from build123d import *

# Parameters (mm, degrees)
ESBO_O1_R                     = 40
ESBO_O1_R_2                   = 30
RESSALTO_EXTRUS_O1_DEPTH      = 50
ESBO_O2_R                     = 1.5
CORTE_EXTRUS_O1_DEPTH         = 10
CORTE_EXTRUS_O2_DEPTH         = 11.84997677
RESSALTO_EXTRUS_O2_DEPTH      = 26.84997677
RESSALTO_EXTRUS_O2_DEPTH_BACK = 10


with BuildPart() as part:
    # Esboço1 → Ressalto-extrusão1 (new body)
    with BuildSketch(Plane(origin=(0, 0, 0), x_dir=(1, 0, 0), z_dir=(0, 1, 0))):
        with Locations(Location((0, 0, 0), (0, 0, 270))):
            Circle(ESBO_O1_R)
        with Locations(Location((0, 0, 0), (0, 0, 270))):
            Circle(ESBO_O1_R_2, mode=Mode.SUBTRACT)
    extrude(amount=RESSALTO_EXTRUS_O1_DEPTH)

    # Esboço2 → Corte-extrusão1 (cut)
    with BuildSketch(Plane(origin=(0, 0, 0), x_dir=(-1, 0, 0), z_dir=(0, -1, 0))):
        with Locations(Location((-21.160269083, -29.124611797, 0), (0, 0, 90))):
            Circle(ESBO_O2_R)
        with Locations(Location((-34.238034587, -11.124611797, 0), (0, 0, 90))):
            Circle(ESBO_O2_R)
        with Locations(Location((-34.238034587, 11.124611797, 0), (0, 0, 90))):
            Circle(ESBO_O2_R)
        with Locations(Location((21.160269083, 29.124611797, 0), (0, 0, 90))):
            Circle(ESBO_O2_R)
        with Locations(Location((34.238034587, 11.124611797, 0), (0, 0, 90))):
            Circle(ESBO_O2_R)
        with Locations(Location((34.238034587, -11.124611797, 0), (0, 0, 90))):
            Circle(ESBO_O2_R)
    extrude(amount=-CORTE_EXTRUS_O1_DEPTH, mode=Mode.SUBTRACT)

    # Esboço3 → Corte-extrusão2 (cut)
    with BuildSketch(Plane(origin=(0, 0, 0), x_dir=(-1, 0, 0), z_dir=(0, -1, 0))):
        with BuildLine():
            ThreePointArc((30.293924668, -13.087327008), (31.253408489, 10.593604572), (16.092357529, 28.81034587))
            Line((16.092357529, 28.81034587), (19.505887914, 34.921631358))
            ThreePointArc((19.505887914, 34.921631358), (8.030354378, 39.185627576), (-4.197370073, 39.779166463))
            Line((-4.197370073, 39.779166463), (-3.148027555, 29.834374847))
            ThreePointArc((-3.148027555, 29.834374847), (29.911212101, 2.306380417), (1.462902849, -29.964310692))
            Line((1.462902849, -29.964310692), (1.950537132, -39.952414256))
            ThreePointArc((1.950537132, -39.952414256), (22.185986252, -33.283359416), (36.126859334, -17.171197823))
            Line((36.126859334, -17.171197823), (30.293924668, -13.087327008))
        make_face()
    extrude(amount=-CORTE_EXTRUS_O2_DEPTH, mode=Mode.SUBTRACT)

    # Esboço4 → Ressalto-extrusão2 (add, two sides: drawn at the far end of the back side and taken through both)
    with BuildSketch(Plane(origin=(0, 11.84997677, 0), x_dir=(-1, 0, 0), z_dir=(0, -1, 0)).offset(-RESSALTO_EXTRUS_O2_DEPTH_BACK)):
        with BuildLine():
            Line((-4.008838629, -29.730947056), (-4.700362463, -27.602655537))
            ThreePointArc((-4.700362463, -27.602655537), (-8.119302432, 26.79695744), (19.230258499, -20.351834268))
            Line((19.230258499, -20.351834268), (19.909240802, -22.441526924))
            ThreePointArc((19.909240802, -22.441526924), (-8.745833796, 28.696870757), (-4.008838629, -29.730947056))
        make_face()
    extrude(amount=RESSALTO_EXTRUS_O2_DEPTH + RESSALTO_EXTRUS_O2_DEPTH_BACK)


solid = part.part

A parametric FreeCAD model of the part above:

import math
import FreeCAD as App
import Part
import Sketcher

V = App.Vector
Q = App.Units.Quantity

doc = App.newDocument("Part")
body = doc.addObject("PartDesign::Body", "Body")

sketch1 = body.newObject("Sketcher::SketchObject", "Sketch")
sketch1.AttachmentSupport = (doc.getObject("XZ_Plane"), [""])
sketch1.MapMode = "FlatFace"
sketch1.addGeometry(Part.Circle(V(0, 0, 0), V(0, 0, 1), 40), False)
sketch1.addGeometry(Part.Circle(V(0, 0, 0), V(0, 0, 1), 30), False)
sketch1.addConstraint(Sketcher.Constraint("Coincident", 0, 3, -1, 1))
sketch1.addConstraint(Sketcher.Constraint("Coincident", 1, 3, -1, 1))
sketch1.addConstraint(Sketcher.Constraint("Diameter", 0, 80.0))
sketch1.addConstraint(Sketcher.Constraint("Diameter", 1, 60.0))
pad1 = body.newObject("PartDesign::Pad", "Pad")
pad1.Profile = sketch1
pad1.Length = 50
pad1.Reversed = True

sketch2 = body.newObject("Sketcher::SketchObject", "Sketch001")
sketch2.AttachmentSupport = (doc.getObject("XZ_Plane"), [""])
sketch2.MapMode = "FlatFace"
sketch2.addGeometry(Part.Circle(V(21.2, 29.1, 0), V(0, 0, 1), 1.5), False)
sketch2.addGeometry(Part.Circle(V(34.2, 11.1, 0), V(0, 0, 1), 1.5), False)
sketch2.addGeometry(Part.Circle(V(34.2, -11.1, 0), V(0, 0, 1), 1.5), False)
sketch2.addGeometry(Part.Circle(V(-21.2, -29.1, 0), V(0, 0, 1), 1.5), False)
sketch2.addGeometry(Part.Circle(V(-34.2, -11.1, 0), V(0, 0, 1), 1.5), False)
sketch2.addGeometry(Part.Circle(V(-34.2, 11.1, 0), V(0, 0, 1), 1.5), False)
sketch2.addConstraint(Sketcher.Constraint("Equal", 0, 1))
sketch2.addConstraint(Sketcher.Constraint("Equal", 1, 2))
sketch2.addConstraint(Sketcher.Constraint("Equal", 2, 3))
sketch2.addConstraint(Sketcher.Constraint("Equal", 3, 4))
sketch2.addConstraint(Sketcher.Constraint("Equal", 4, 5))
sketch2.addConstraint(Sketcher.Constraint("Symmetric", 0, 3, 3, 3, -1, 1))
sketch2.addConstraint(Sketcher.Constraint("Symmetric", 1, 3, 4, 3, -1, 1))
sketch2.addConstraint(Sketcher.Constraint("Symmetric", 2, 3, 5, 3, -1, 1))
sketch2.addConstraint(Sketcher.Constraint("Symmetric", 2, 3, 4, 3, -2))
sketch2.addConstraint(Sketcher.Constraint("Diameter", 0, 3.0))
sketch2.addConstraint(Sketcher.Constraint("DistanceY", 1, 3, 0, 3, 18.0))
sketch2.addConstraint(Sketcher.Constraint("DistanceX", -1, 1, 0, 3, 21.160269))
sketch2.addConstraint(Sketcher.Constraint("DistanceY", -1, 1, 0, 3, 29.124612))
sketch2.addConstraint(Sketcher.Constraint("DistanceX", 4, 3, 2, 3, 68.476069))
pocket1 = body.newObject("PartDesign::Pocket", "Pocket")
pocket1.Profile = sketch2
pocket1.Length = 10

sketch3 = body.newObject("Sketcher::SketchObject", "Sketch002")
sketch3.AttachmentSupport = (doc.getObject("XZ_Plane"), [""])
sketch3.MapMode = "FlatFace"
sketch3.addGeometry(Part.ArcOfCircle(Part.Circle(V(0, 0, 0), V(0, 0, 1), 33), math.radians(157), math.radians(241)), False)
sketch3.addGeometry(Part.LineSegment(V(-16, -29, 0), V(-20, -35, 0)), False)
sketch3.addGeometry(Part.ArcOfCircle(Part.Circle(V(0, 0, 0), V(0, 0, 1), 40), math.radians(-119), math.radians(-84)), False)
sketch3.addGeometry(Part.LineSegment(V(4, -40, 0), V(3, -30, 0)), False)
sketch3.addGeometry(Part.ArcOfCircle(Part.Circle(V(0, 0, 0), V(0, 0, 1), 30), math.radians(93), math.radians(276)), False)
sketch3.addGeometry(Part.LineSegment(V(-1, 30, 0), V(-2, 40, 0)), False)
sketch3.addGeometry(Part.ArcOfCircle(Part.Circle(V(0, 0, 0), V(0, 0, 1), 40), math.radians(93), math.radians(155)), False)
sketch3.addGeometry(Part.LineSegment(V(-36, 17, 0), V(-30, 13, 0)), False)
sketch3.addConstraint(Sketcher.Constraint("Coincident", 0, 2, 1, 1))
sketch3.addConstraint(Sketcher.Constraint("Coincident", 1, 2, 2, 1))
sketch3.addConstraint(Sketcher.Constraint("Coincident", 2, 2, 3, 1))
sketch3.addConstraint(Sketcher.Constraint("Coincident", 3, 2, 4, 2))
sketch3.addConstraint(Sketcher.Constraint("Coincident", 4, 1, 5, 1))
sketch3.addConstraint(Sketcher.Constraint("Coincident", 5, 2, 6, 1))
sketch3.addConstraint(Sketcher.Constraint("Coincident", 6, 2, 7, 1))
sketch3.addConstraint(Sketcher.Constraint("Coincident", 7, 2, 0, 1))
sketch3.addConstraint(Sketcher.Constraint("Coincident", 0, 3, -1, 1))
sketch3.addConstraint(Sketcher.Constraint("Coincident", 2, 3, -1, 1))
sketch3.addConstraint(Sketcher.Constraint("Coincident", 4, 3, -1, 1))
sketch3.addConstraint(Sketcher.Constraint("Coincident", 6, 3, -1, 1))
sketch3.addConstraint(Sketcher.Constraint("Equal", 2, 6))
sketch3.addConstraint(Sketcher.Constraint("Radius", 0, 33.0))
sketch3.addConstraint(Sketcher.Constraint("Radius", 2, 40.0))
sketch3.addConstraint(Sketcher.Constraint("Radius", 4, 30.0))
sketch3.addConstraint(Sketcher.Constraint("DistanceY", 1, 2, -1, 1, 34.921631))
sketch3.addConstraint(Sketcher.Constraint("DistanceX", -1, 1, 2, 2, 4.19737))
sketch3.addConstraint(Sketcher.Constraint("DistanceY", -1, 1, 4, 1, 29.964311))
sketch3.addConstraint(Sketcher.Constraint("DistanceX", 6, 2, -1, 1, 36.126859))
sketch3.addConstraint(Sketcher.Constraint("DistanceX", 1, 2, 0, 2, 3.41353))
sketch3.addConstraint(Sketcher.Constraint("DistanceY", 2, 2, 3, 2, 9.944792))
sketch3.addConstraint(Sketcher.Constraint("DistanceY", 7, 2, 6, 2, 4.083871))
sketch3.addConstraint(Sketcher.Constraint("DistanceX", 5, 2, -1, 1, 1.950537))
pocket2 = body.newObject("PartDesign::Pocket", "Pocket001")
pocket2.Profile = sketch3
pocket2.Length = 11.849977

sketch4 = body.newObject("Sketcher::SketchObject", "Sketch003")
sketch4.AttachmentSupport = (doc.getObject("XZ_Plane"), [""])
sketch4.MapMode = "FlatFace"
sketch4.AttachmentOffset = App.Placement(V(0, 0, -11.849977), App.Rotation())
sketch4.addGeometry(Part.LineSegment(V(4, 29.7, 0), V(4.7, 27.6, 0)), False)
sketch4.addGeometry(Part.ArcOfCircle(Part.Circle(V(0, 0, 0), V(0, 0, 1), 28), math.radians(133), math.radians(440)), False)
sketch4.addGeometry(Part.LineSegment(V(-19.2, 20.4, 0), V(-19.9, 22.4, 0)), False)
sketch4.addGeometry(Part.ArcOfCircle(Part.Circle(V(0, 0, 0), V(0, 0, 1), 30), math.radians(132), math.radians(442)), False)
sketch4.addConstraint(Sketcher.Constraint("Coincident", 0, 2, 1, 2))
sketch4.addConstraint(Sketcher.Constraint("Coincident", 1, 1, 2, 1))
sketch4.addConstraint(Sketcher.Constraint("Coincident", 2, 2, 3, 1))
sketch4.addConstraint(Sketcher.Constraint("Coincident", 3, 2, 0, 1))
sketch4.addConstraint(Sketcher.Constraint("Coincident", 1, 3, -1, 1))
sketch4.addConstraint(Sketcher.Constraint("Coincident", 3, 3, -1, 1))
sketch4.addConstraint(Sketcher.Constraint("Parallel", 0, 2))
sketch4.addConstraint(Sketcher.Constraint("Radius", 1, 28.0))
sketch4.addConstraint(Sketcher.Constraint("Radius", 3, 30.0))
sketch4.addConstraint(Sketcher.Constraint("Angle", 0, Q("-72 deg")))
sketch4.addConstraint(Sketcher.Constraint("Distance", 0, 2.237818))
sketch4.addConstraint(Sketcher.Constraint("DistanceX", 1, 1, -1, 1, 19.230258))
pad2 = body.newObject("PartDesign::Pad", "Pad001")
pad2.Profile = sketch4
pad2.Type = "TwoLengths"
pad2.Length = 26.849977
pad2.Length2 = 10

doc.recompute()
